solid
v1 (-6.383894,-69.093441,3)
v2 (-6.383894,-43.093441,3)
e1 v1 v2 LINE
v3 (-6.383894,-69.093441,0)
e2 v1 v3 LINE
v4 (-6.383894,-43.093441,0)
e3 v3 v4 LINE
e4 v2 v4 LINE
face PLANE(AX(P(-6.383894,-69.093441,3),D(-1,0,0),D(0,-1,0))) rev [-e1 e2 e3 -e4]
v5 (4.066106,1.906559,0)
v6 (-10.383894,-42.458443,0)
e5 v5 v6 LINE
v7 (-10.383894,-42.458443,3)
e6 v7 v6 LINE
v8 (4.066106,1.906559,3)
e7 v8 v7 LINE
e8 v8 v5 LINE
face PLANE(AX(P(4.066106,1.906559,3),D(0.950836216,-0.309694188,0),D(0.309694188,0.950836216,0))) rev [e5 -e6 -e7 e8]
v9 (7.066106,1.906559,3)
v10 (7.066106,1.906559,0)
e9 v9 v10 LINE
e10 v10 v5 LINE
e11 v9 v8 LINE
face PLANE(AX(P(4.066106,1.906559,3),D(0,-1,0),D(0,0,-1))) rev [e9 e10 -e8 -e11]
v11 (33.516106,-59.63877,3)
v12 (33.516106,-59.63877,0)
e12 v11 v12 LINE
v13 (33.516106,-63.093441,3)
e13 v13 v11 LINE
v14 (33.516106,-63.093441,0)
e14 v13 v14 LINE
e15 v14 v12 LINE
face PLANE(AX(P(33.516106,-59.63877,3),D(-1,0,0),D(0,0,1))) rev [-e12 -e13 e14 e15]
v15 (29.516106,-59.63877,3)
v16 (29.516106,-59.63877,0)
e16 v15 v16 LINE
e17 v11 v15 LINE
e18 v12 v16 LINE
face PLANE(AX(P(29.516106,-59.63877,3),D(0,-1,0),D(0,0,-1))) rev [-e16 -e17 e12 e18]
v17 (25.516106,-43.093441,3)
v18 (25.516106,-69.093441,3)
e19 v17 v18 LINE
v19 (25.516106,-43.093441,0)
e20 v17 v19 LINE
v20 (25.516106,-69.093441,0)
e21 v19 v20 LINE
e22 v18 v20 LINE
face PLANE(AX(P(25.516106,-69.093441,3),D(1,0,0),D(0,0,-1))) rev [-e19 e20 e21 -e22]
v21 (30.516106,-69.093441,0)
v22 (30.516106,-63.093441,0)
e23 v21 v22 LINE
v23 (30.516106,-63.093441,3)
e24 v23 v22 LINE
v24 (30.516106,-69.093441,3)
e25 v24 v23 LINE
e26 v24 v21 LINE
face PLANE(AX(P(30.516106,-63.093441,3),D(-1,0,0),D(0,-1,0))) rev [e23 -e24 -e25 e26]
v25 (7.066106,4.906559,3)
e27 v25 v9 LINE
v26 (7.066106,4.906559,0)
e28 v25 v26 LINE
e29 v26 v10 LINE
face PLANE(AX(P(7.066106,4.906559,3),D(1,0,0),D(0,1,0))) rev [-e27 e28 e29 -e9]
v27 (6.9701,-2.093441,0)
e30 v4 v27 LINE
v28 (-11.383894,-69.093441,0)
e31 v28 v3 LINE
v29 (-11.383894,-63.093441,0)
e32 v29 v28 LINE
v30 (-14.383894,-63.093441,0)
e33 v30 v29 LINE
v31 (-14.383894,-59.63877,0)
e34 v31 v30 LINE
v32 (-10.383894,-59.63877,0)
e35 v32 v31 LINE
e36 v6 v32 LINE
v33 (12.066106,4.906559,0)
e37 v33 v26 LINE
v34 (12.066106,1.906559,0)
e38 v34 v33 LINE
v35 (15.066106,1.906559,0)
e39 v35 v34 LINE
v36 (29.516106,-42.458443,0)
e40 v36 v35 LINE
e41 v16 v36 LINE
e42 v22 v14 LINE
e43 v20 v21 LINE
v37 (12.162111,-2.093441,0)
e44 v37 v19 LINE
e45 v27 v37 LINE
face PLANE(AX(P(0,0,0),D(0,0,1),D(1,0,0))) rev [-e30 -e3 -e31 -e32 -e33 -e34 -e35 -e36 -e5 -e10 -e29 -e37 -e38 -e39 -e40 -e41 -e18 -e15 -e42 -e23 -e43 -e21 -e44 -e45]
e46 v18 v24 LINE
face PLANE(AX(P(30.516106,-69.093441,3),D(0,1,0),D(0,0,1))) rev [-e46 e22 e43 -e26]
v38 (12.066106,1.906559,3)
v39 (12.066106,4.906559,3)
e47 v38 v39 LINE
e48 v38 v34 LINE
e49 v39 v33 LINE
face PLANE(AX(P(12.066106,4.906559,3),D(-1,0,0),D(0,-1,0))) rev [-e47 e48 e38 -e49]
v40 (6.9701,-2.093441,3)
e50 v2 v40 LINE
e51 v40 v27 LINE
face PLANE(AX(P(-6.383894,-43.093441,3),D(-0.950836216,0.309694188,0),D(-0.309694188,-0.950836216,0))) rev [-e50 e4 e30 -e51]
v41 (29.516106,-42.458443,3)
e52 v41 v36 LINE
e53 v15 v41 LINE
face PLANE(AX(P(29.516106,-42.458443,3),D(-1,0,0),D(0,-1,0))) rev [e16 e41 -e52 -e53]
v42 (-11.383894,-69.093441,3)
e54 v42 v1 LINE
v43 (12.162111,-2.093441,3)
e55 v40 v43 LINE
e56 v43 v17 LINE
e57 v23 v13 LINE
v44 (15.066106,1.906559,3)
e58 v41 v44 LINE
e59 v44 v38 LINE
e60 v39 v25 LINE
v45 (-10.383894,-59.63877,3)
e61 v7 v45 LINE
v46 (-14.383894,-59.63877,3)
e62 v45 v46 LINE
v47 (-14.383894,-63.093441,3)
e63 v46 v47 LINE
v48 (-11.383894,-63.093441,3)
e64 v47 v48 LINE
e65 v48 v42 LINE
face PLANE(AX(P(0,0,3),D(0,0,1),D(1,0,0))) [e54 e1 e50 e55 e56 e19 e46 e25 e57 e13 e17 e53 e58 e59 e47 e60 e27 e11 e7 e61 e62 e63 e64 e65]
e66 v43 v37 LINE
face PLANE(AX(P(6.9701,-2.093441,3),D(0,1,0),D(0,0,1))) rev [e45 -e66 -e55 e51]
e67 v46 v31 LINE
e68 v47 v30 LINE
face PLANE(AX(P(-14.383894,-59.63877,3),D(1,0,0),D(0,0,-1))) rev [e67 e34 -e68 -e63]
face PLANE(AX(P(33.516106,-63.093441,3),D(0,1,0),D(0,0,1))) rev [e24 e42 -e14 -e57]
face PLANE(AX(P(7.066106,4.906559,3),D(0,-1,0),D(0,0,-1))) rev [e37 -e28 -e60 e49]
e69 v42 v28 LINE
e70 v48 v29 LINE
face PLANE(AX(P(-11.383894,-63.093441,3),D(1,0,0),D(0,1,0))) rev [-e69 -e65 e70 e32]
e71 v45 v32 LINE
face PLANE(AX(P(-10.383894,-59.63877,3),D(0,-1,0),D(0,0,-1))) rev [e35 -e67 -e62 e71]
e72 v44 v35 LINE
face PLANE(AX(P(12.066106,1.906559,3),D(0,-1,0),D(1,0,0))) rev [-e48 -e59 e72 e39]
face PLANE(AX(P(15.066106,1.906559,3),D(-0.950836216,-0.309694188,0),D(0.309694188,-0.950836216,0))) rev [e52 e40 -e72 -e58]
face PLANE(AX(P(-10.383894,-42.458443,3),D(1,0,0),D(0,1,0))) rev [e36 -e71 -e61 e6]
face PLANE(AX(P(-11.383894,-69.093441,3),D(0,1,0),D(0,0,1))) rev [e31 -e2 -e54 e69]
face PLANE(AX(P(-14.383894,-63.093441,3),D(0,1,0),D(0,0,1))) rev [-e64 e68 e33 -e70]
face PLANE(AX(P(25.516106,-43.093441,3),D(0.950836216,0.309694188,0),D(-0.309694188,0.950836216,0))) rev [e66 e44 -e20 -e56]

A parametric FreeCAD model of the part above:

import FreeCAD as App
import Part
import Sketcher

V = App.Vector
Q = App.Units.Quantity

doc = App.newDocument("Part")
body = doc.addObject("PartDesign::Body", "Body")

# Sketch on XY plane
sketch1 = body.newObject("Sketcher::SketchObject", "Sketch")
sketch1.AttachmentSupport = (doc.getObject("XY_Plane"), [""])
sketch1.MapMode = "FlatFace"
sketch1.addGeometry([
    Part.LineSegment(V(-6.383894, -69.093441, 0), V(-6.383894, -43.093441, 0)),  # 0
    Part.LineSegment(V(-6.383894, -43.093441, 0), V(6.9701, -2.093441, 0)),  # 1
    Part.LineSegment(V(6.9701, -2.093441, 0), V(12.162111, -2.093441, 0)),  # 2
    Part.LineSegment(V(12.162111, -2.093441, 0), V(25.516106, -43.093441, 0)),  # 3
    Part.LineSegment(V(25.516106, -43.093441, 0), V(25.516106, -69.093441, 0)),  # 4
    Part.LineSegment(V(25.516106, -69.093441, 0), V(30.516106, -69.093441, 0)),  # 5
    Part.LineSegment(V(30.516106, -69.093441, 0), V(30.516106, -63.093441, 0)),  # 6
    Part.LineSegment(V(30.516106, -63.093441, 0), V(33.516106, -63.093441, 0)),  # 7
    Part.LineSegment(V(33.516106, -63.093441, 0), V(33.516106, -59.63877, 0)),  # 8
    Part.LineSegment(V(33.516106, -59.63877, 0), V(29.516106, -59.63877, 0)),  # 9
    Part.LineSegment(V(29.516106, -59.63877, 0), V(29.516106, -42.458443, 0)),  # 10
    Part.LineSegment(V(29.516106, -42.458443, 0), V(15.066106, 1.906559, 0)),  # 11
    Part.LineSegment(V(15.066106, 1.906559, 0), V(12.066106, 1.906559, 0)),  # 12
    Part.LineSegment(V(12.066106, 1.906559, 0), V(12.066106, 4.906559, 0)),  # 13
    Part.LineSegment(V(12.066106, 4.906559, 0), V(7.066106, 4.906559, 0)),  # 14
    Part.LineSegment(V(7.066106, 4.906559, 0), V(7.066106, 1.906559, 0)),  # 15
    Part.LineSegment(V(7.066106, 1.906559, 0), V(4.066106, 1.906559, 0)),  # 16
    Part.LineSegment(V(4.066106, 1.906559, 0), V(-10.383894, -42.458443, 0)),  # 17
    Part.LineSegment(V(-10.383894, -42.458443, 0), V(-10.383894, -59.63877, 0)),  # 18
    Part.LineSegment(V(-10.383894, -59.63877, 0), V(-14.383894, -59.63877, 0)),  # 19
    Part.LineSegment(V(-14.383894, -59.63877, 0), V(-14.383894, -63.093441, 0)),  # 20
    Part.LineSegment(V(-14.383894, -63.093441, 0), V(-11.383894, -63.093441, 0)),  # 21
    Part.LineSegment(V(-11.383894, -63.093441, 0), V(-11.383894, -69.093441, 0)),  # 22
    Part.LineSegment(V(-11.383894, -69.093441, 0), V(-6.383894, -69.093441, 0)),  # 23
], False)
sketch1.addConstraint([
    Sketcher.Constraint("Coincident", 0, 2, 1, 1),
    Sketcher.Constraint("Coincident", 1, 2, 2, 1),
    Sketcher.Constraint("Coincident", 2, 2, 3, 1),
    Sketcher.Constraint("Coincident", 3, 2, 4, 1),
    Sketcher.Constraint("Coincident", 4, 2, 5, 1),
    Sketcher.Constraint("Coincident", 5, 2, 6, 1),
    Sketcher.Constraint("Coincident", 6, 2, 7, 1),
    Sketcher.Constraint("Coincident", 7, 2, 8, 1),
    Sketcher.Constraint("Coincident", 8, 2, 9, 1),
    Sketcher.Constraint("Coincident", 9, 2, 10, 1),
    Sketcher.Constraint("Coincident", 10, 2, 11, 1),
    Sketcher.Constraint("Coincident", 11, 2, 12, 1),
    Sketcher.Constraint("Coincident", 12, 2, 13, 1),
    Sketcher.Constraint("Coincident", 13, 2, 14, 1),
    Sketcher.Constraint("Coincident", 14, 2, 15, 1),
    Sketcher.Constraint("Coincident", 15, 2, 16, 1),
    Sketcher.Constraint("Coincident", 16, 2, 17, 1),
    Sketcher.Constraint("Coincident", 17, 2, 18, 1),
    Sketcher.Constraint("Coincident", 18, 2, 19, 1),
    Sketcher.Constraint("Coincident", 19, 2, 20, 1),
    Sketcher.Constraint("Coincident", 20, 2, 21, 1),
    Sketcher.Constraint("Coincident", 21, 2, 22, 1),
    Sketcher.Constraint("Coincident", 22, 2, 23, 1),
    Sketcher.Constraint("Coincident", 23, 2, 0, 1),
    Sketcher.Constraint("Vertical", 0),
    Sketcher.Constraint("Horizontal", 2),
    Sketcher.Constraint("Vertical", 4),
    Sketcher.Constraint("Horizontal", 5),
    Sketcher.Constraint("Vertical", 6),
    Sketcher.Constraint("Horizontal", 7),
    Sketcher.Constraint("Vertical", 8),
    Sketcher.Constraint("Horizontal", 9),
    Sketcher.Constraint("Vertical", 10),
    Sketcher.Constraint("Horizontal", 12),
    Sketcher.Constraint("Vertical", 13),
    Sketcher.Constraint("Horizontal", 14),
    Sketcher.Constraint("Vertical", 15),
    Sketcher.Constraint("Horizontal", 16),
    Sketcher.Constraint("Vertical", 18),
    Sketcher.Constraint("Horizontal", 19),
    Sketcher.Constraint("Vertical", 20),
    Sketcher.Constraint("Horizontal", 21),
    Sketcher.Constraint("Vertical", 22),
    Sketcher.Constraint("Horizontal", 23),
    Sketcher.Constraint("Parallel", 3, 11),
    Sketcher.Constraint("Parallel", 1, 17),
    Sketcher.Constraint("Horizontal", 0, 2, 3, 2),
    Sketcher.Constraint("Horizontal", 12, 2, 15, 2),
    Sketcher.Constraint("Horizontal", 10, 2, 17, 2),
    Sketcher.Constraint("Horizontal", 9, 2, 18, 2),
    Sketcher.Constraint("Horizontal", 7, 2, 20, 2),
    Sketcher.Constraint("Horizontal", 5, 2, 22, 2),
    Sketcher.Constraint("Equal", 7, 12),
    Sketcher.Constraint("Equal", 5, 14),
    Sketcher.Constraint("Equal", 12, 16),
    Sketcher.Constraint("Equal", 9, 19),
    Sketcher.Constraint("Equal", 16, 21),
    Sketcher.Constraint("Equal", 14, 23),
    Sketcher.Constraint("Equal", 21, 13),
    Sketcher.Constraint("Equal", 1, 3),
    Sketcher.Constraint("DistanceX", 5, 1, 5, 2, Q("5 mm")),
    Sketcher.Constraint("DistanceX", 7, 1, 7, 2, Q("3 mm")),
    Sketcher.Constraint("DistanceX", 9, 2, 9, 1, Q("4 mm")),
    Sketcher.Constraint("DistanceY", 0, 1, 0, 2, Q("26 mm")),
    Sketcher.Constraint("DistanceY", 6, 1, 6, 2, Q("6 mm")),
    Sketcher.Constraint("DistanceY", 0, 2, 1, 2, Q("41 mm")),
    Sketcher.Constraint("DistanceY", 2, 2, 11, 2, Q("4 mm")),
    Sketcher.Constraint("DistanceX", 0, 2, 3, 2, Q("31.9 mm")),
    Sketcher.Constraint("DistanceX", 2, 1, 2, 2, Q("5.192011 mm")),
    Sketcher.Constraint("DistanceY", 8, 1, 8, 2, Q("3.454671 mm")),
    Sketcher.Constraint("DistanceX", -1, 1, 1, 2, Q("6.9701 mm")),
    Sketcher.Constraint("DistanceY", 0, 2, -1, 1, Q("43.093441 mm")),
])
pad1 = body.newObject("PartDesign::Pad", "Pad")
pad1.Profile = sketch1
pad1.Length = 3

doc.recompute()
